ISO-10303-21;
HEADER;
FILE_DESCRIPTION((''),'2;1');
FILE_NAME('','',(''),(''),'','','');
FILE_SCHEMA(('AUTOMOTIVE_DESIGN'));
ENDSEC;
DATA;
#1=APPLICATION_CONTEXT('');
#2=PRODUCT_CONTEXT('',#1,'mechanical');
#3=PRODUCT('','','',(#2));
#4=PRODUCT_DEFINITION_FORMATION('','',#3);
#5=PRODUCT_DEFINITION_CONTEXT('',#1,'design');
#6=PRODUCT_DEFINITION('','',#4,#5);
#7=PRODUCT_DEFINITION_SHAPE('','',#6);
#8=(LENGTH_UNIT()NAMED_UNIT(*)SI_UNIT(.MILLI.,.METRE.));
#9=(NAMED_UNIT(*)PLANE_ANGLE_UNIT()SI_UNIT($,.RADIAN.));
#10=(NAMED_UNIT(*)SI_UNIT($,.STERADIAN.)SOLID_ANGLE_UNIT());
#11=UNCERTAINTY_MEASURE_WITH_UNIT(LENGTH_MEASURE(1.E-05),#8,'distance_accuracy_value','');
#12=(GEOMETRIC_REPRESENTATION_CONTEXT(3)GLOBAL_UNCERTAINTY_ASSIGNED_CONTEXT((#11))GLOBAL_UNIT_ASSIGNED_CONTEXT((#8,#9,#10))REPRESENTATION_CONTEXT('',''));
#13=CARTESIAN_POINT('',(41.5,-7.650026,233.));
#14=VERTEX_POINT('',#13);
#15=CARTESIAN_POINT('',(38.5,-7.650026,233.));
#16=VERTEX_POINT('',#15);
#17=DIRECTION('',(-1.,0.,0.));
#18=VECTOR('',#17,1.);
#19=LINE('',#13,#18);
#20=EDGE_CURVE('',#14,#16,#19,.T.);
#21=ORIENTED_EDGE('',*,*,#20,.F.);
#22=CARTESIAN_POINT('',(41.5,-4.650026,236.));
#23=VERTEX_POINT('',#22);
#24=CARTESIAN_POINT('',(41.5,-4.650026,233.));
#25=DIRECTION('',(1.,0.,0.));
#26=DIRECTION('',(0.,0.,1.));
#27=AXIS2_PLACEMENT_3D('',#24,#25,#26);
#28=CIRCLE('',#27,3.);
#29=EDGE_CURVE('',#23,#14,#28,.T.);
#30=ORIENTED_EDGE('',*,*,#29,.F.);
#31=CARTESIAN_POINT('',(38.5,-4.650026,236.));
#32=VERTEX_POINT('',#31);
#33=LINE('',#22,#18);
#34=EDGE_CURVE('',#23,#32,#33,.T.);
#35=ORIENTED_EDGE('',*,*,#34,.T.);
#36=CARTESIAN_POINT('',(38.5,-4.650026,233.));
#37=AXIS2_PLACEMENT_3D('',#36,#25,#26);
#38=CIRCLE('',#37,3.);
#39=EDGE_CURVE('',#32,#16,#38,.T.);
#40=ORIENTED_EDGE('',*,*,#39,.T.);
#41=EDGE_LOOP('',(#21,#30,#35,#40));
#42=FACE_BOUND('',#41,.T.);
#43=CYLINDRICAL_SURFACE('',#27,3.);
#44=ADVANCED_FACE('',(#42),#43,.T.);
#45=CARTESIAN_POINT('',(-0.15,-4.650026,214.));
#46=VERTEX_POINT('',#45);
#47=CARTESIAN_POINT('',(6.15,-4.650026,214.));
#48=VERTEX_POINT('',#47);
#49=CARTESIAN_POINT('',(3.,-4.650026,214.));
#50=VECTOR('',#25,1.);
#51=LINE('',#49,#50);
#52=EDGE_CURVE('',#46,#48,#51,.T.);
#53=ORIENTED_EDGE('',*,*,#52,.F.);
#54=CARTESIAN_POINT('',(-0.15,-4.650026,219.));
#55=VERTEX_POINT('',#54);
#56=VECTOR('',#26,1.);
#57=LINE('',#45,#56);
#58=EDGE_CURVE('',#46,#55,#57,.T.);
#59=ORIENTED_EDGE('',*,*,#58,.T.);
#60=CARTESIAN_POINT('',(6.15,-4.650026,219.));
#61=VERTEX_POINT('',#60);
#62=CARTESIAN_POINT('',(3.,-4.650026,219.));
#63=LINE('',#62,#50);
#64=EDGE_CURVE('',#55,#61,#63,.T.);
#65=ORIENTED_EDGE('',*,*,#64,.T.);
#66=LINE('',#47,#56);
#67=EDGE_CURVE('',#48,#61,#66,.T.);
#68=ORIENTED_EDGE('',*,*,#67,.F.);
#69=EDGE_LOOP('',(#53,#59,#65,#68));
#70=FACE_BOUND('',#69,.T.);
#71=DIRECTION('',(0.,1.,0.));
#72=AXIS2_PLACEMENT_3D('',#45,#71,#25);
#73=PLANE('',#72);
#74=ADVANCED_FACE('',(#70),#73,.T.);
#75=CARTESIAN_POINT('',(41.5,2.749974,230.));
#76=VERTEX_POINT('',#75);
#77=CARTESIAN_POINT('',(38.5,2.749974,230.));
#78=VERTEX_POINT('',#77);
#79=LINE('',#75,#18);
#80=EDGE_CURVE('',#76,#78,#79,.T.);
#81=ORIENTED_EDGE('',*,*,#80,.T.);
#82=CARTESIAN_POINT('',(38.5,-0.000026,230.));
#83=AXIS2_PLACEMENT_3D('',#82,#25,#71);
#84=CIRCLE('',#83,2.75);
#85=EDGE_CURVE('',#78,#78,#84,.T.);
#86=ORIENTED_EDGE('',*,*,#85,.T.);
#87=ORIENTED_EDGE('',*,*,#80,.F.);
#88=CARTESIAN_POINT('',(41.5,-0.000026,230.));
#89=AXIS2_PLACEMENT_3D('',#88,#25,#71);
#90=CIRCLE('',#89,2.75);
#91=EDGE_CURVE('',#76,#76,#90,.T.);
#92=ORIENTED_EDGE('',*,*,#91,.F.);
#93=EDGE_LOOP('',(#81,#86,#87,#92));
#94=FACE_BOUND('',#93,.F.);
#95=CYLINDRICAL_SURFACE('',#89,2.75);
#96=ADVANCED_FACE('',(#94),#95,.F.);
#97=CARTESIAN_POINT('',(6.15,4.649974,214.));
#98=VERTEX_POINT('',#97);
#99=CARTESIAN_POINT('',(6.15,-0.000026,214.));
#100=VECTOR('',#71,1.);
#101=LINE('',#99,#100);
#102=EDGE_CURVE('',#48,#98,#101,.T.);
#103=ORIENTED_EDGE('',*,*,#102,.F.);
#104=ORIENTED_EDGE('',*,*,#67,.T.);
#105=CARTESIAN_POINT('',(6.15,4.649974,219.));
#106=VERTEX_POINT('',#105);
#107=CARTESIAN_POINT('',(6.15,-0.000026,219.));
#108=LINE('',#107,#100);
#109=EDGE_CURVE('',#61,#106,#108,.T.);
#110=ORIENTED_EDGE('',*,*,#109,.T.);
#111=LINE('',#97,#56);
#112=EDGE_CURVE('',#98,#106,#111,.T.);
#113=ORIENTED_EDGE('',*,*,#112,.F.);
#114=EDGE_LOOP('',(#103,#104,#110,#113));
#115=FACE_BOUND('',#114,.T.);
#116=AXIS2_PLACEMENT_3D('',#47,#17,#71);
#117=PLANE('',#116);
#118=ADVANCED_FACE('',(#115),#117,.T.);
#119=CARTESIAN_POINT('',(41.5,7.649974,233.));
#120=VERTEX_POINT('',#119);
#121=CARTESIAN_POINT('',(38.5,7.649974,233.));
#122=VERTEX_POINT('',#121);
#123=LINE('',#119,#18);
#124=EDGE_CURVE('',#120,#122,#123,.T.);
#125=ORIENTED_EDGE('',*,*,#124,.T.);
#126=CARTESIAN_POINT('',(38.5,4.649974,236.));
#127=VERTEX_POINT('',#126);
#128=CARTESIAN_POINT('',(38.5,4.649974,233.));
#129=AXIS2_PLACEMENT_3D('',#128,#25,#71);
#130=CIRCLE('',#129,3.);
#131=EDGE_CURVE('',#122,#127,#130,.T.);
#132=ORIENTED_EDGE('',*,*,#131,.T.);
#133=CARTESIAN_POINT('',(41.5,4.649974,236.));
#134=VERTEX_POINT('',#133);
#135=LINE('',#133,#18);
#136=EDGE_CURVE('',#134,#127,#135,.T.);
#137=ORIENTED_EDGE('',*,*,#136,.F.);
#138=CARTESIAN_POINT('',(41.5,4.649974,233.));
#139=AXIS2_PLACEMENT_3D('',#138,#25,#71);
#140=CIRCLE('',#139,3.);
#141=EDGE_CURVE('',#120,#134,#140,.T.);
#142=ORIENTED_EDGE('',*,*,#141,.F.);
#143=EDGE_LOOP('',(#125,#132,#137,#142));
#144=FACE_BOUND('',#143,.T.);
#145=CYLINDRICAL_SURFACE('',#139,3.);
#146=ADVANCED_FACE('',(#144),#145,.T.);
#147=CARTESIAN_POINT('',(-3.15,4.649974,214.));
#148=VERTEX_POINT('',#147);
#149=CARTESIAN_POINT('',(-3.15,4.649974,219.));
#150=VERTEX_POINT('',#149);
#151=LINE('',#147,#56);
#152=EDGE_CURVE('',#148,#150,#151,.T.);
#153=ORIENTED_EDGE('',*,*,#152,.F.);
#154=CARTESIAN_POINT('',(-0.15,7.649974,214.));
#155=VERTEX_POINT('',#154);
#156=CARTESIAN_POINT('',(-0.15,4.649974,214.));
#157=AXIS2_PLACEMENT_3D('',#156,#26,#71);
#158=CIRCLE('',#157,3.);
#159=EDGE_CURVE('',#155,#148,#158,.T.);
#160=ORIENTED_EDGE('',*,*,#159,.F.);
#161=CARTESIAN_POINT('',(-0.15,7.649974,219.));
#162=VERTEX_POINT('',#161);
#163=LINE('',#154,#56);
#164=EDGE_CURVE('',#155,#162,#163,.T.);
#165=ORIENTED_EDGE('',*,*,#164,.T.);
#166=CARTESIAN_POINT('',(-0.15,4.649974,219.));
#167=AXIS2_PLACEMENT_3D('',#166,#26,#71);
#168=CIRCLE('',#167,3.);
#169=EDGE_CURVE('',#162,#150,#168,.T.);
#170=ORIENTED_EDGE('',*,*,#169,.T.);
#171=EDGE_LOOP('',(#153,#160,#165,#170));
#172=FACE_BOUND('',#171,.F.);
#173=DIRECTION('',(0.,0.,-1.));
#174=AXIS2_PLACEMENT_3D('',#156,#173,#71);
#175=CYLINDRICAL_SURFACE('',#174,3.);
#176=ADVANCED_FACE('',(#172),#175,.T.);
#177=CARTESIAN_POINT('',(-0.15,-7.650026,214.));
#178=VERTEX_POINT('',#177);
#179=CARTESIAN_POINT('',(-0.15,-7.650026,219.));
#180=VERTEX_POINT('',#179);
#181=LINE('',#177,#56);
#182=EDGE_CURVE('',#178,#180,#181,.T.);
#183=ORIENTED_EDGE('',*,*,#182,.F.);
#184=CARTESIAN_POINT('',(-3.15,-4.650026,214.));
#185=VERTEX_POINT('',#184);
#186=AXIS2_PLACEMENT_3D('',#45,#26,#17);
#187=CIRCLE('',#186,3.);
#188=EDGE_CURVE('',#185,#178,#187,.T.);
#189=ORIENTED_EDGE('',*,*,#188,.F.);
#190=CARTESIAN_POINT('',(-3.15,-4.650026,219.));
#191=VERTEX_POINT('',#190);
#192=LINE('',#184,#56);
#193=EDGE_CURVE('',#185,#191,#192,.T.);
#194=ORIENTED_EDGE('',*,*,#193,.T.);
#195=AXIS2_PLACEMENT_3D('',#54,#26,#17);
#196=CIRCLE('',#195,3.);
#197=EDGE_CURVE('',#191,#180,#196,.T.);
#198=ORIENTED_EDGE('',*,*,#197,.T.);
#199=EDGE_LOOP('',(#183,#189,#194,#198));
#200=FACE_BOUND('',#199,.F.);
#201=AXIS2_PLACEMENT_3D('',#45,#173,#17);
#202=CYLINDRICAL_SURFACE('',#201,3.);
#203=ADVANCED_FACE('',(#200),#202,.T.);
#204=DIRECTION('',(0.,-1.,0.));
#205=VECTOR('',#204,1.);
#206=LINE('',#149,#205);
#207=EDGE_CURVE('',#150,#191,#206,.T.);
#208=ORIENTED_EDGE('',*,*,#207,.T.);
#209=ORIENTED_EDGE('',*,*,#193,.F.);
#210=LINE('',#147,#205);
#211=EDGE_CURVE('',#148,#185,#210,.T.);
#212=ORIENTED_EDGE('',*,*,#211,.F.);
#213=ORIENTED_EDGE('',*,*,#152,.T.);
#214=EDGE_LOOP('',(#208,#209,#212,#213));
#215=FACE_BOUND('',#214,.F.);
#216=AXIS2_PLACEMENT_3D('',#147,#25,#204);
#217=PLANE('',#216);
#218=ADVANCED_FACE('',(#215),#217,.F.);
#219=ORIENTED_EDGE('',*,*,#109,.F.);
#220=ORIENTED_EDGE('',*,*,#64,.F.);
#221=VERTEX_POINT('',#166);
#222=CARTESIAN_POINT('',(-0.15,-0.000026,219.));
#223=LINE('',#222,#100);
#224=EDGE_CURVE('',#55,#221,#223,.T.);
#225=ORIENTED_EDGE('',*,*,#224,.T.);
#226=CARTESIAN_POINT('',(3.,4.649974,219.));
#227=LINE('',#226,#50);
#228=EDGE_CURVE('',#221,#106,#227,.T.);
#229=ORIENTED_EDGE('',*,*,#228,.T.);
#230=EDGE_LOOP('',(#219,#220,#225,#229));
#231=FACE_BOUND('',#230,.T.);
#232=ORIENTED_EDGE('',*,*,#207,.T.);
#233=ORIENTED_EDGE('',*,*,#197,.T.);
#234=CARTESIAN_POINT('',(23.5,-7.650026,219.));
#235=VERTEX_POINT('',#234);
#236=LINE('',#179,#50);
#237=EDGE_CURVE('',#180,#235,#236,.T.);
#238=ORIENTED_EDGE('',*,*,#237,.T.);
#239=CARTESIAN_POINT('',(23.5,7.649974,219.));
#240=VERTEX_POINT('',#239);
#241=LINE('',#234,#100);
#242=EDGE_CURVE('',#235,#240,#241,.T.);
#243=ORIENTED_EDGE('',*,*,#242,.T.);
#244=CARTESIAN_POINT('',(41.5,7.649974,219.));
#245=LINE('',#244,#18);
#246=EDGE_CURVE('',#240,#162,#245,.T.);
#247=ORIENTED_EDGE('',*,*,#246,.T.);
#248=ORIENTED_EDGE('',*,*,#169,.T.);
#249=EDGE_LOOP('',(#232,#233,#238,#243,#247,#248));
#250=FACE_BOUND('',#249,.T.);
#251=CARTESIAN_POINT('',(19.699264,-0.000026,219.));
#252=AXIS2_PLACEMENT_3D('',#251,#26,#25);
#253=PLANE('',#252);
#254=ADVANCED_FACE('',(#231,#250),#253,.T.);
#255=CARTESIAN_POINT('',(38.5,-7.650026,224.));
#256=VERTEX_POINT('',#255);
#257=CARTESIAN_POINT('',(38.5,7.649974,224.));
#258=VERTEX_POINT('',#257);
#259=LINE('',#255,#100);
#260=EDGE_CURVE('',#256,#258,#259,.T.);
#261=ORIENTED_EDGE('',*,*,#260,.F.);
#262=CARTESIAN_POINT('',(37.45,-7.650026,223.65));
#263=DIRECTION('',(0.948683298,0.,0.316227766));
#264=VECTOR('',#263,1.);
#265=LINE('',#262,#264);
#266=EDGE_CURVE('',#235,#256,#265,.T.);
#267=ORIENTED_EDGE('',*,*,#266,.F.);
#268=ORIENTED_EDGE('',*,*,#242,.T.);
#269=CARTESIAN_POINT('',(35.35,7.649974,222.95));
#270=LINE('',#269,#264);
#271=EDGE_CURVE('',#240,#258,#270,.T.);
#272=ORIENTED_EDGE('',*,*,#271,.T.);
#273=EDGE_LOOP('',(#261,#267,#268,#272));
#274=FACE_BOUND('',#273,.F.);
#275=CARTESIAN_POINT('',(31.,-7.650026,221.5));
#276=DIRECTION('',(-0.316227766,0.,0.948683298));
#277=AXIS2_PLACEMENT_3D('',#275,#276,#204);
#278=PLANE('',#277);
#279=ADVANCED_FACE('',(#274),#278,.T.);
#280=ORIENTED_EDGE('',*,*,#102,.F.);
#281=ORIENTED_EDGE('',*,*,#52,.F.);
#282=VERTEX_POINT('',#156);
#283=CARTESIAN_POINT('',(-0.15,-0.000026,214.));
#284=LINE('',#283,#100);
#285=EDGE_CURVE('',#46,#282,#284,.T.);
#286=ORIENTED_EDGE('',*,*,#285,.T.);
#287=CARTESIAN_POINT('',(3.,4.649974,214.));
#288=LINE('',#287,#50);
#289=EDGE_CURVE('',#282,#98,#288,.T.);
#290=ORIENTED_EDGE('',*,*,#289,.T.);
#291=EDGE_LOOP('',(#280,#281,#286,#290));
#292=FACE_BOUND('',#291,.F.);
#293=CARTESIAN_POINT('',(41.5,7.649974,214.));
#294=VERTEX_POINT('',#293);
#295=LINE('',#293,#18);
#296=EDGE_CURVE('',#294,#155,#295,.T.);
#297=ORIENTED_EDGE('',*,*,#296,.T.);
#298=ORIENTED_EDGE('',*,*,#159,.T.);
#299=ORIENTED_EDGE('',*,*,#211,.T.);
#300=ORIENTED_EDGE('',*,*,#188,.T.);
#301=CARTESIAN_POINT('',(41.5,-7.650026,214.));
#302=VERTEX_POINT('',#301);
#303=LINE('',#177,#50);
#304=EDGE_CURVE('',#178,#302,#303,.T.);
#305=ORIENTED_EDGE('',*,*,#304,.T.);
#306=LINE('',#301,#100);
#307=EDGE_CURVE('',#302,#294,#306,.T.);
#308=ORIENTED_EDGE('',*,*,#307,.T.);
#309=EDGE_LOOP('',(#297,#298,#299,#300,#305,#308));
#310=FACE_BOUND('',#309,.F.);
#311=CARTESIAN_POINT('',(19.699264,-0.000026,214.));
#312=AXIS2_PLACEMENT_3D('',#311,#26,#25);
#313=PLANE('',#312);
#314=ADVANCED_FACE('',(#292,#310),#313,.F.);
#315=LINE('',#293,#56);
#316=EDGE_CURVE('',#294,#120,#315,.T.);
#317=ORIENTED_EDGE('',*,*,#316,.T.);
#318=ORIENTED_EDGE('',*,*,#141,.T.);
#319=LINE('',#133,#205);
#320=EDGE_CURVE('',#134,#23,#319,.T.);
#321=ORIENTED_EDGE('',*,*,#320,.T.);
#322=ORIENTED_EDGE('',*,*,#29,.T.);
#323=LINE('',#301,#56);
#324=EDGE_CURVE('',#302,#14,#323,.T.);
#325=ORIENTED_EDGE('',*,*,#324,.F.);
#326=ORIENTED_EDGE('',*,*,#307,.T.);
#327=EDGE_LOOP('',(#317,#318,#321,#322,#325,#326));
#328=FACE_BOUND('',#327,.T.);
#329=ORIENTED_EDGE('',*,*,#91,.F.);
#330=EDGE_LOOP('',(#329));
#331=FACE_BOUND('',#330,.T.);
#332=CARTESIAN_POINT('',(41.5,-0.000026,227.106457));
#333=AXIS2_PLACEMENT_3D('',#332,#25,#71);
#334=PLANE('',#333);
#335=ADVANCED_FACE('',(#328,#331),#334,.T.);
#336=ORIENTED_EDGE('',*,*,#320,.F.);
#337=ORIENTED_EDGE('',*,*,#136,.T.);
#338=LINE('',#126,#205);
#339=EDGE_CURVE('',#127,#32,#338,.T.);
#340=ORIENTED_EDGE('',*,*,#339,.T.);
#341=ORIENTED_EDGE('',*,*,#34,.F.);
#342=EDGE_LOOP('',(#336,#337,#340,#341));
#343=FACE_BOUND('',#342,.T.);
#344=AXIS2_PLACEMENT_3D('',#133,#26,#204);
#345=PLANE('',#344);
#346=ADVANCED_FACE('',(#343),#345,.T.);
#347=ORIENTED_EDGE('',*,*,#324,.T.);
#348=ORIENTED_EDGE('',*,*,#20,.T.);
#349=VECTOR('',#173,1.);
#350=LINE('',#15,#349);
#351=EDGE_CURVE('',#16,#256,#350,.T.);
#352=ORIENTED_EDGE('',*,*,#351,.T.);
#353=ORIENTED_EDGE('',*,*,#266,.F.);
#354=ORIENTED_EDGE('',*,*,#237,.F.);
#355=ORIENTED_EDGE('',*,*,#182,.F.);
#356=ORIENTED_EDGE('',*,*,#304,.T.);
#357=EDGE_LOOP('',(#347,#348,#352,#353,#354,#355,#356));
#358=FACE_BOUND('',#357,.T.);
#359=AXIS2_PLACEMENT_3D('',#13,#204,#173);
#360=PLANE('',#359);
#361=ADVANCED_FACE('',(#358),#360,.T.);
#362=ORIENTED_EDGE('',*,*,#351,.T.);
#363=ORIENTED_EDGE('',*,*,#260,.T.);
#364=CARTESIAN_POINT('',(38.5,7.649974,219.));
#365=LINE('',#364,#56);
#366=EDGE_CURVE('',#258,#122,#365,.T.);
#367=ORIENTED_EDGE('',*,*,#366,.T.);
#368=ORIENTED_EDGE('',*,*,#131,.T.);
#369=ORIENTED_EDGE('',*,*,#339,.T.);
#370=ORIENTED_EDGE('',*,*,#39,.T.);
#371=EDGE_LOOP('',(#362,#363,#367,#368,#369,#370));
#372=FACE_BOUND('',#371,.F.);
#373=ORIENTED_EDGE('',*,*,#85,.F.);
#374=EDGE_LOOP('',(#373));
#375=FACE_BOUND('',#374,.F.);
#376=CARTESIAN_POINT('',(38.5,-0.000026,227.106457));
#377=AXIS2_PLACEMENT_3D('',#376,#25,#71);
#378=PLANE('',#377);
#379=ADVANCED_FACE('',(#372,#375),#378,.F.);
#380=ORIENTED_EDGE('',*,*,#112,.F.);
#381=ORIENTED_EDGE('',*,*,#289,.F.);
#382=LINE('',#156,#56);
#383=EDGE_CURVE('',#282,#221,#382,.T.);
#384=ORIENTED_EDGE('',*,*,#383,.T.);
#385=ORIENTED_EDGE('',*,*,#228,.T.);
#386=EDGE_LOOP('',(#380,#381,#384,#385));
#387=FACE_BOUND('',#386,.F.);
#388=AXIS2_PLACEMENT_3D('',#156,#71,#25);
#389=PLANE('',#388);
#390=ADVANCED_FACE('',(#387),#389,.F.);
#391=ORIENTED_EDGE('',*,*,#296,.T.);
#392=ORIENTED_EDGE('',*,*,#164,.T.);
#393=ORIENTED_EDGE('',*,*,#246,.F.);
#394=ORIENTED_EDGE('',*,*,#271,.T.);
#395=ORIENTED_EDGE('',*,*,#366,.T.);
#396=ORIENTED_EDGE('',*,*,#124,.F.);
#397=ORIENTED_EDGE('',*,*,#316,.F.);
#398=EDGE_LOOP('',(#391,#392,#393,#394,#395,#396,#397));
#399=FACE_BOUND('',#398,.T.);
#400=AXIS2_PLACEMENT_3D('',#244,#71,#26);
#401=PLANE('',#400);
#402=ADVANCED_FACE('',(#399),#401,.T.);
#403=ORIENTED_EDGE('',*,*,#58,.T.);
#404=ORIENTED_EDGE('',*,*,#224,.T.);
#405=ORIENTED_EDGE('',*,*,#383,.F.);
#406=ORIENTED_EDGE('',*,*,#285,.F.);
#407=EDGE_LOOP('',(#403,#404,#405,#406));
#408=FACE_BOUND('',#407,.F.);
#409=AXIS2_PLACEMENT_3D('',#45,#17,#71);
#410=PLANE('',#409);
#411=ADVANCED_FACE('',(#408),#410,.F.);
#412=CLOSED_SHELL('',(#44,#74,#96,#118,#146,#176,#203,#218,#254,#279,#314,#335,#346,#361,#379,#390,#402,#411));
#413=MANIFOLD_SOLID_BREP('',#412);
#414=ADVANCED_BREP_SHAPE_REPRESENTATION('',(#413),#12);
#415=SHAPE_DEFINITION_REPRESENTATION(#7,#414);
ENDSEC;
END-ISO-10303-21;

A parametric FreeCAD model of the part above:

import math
import FreeCAD as App
import Part
import Sketcher

V = App.Vector


def edges_at(feature, points):
    """Names of the edges that pass closest to the given points."""
    edges = feature.Shape.Edges
    near = lambda p: min(range(len(edges)), key=lambda i: edges[i].distToShape(Part.Vertex(*p))[0])
    return sorted({f"Edge{near(p) + 1}" for p in points})

doc = App.newDocument("Part")
body = doc.addObject("PartDesign::Body", "Body")

# Sketch on XY plane
sketch1 = body.newObject("Sketcher::SketchObject", "Sketch")
sketch1.AttachmentSupport = (doc.getObject("XY_Plane"), [""])
sketch1.MapMode = "FlatFace"
sketch1.addGeometry([
    Part.LineSegment(V(-6.2, 4.7, 0), V(-6.2, -4.7, 0)),  # 0
    Part.ArcOfCircle(Part.Circle(V(-3.1, -4.7, 0), V(0, 0, 1), 3), math.radians(180), math.radians(270)),  # 1
    Part.LineSegment(V(-3.1, -7.7, 0), V(38.5, -7.7, 0)),  # 2
    Part.LineSegment(V(38.5, -7.7, 0), V(38.5, 7.7, 0)),  # 3
    Part.LineSegment(V(38.5, 7.7, 0), V(-3.1, 7.7, 0)),  # 4
    Part.ArcOfCircle(Part.Circle(V(-3.1, 4.7, 0), V(0, 0, 1), 3), math.radians(90), math.radians(180)),  # 5
    Part.LineSegment(V(3.1, -4.7, 0), V(-3.1, -4.7, 0)),  # 6
    Part.LineSegment(V(-3.1, -4.7, 0), V(-3.1, 4.7, 0)),  # 7
    Part.LineSegment(V(-3.1, 4.7, 0), V(3.1, 4.7, 0)),  # 8
    Part.LineSegment(V(3.1, 4.7, 0), V(3.1, -4.7, 0)),  # 9
], False)
sketch1.addConstraint([
    Sketcher.Constraint("Tangent", 0, 2, 1, 1),
    Sketcher.Constraint("Tangent", 1, 2, 2, 1),
    Sketcher.Constraint("Coincident", 2, 2, 3, 1),
    Sketcher.Constraint("Coincident", 3, 2, 4, 1),
    Sketcher.Constraint("Tangent", 4, 2, 5, 1),
    Sketcher.Constraint("Tangent", 5, 2, 0, 1),
    Sketcher.Constraint("Coincident", 6, 2, 7, 1),
    Sketcher.Constraint("Coincident", 7, 2, 8, 1),
    Sketcher.Constraint("Coincident", 8, 2, 9, 1),
    Sketcher.Constraint("Coincident", 9, 2, 6, 1),
    Sketcher.Constraint("Vertical", 0),
    Sketcher.Constraint("Horizontal", 2),
    Sketcher.Constraint("Vertical", 3),
    Sketcher.Constraint("Horizontal", 4),
    Sketcher.Constraint("Horizontal", 6),
    Sketcher.Constraint("Vertical", 7),
    Sketcher.Constraint("Horizontal", 8),
    Sketcher.Constraint("Vertical", 9),
    Sketcher.Constraint("Coincident", 6, 2, 1, 3),
    Sketcher.Constraint("Coincident", 7, 2, 5, 3),
    Sketcher.Constraint("Symmetric", 6, 2, 8, 2, -1, 1),
    Sketcher.Constraint("Radius", 1, 3.0),
    Sketcher.Constraint("DistanceX", 6, 2, 6, 1, 6.3),
    Sketcher.Constraint("DistanceY", 0, 2, 0, 1, 9.3),
    Sketcher.Constraint("DistanceX", 2, 1, 2, 2, 41.65),
])
pad1 = body.newObject("PartDesign::Pad", "Pad")
pad1.Profile = sketch1
pad1.Length = 5

# Sketch on YZ plane
sketch2 = body.newObject("Sketcher::SketchObject", "Sketch001")
sketch2.AttachmentSupport = (doc.getObject("YZ_Plane"), [""])
sketch2.MapMode = "FlatFace"
sketch2.AttachmentOffset = App.Placement(V(0, 0, 38.5), App.Rotation())
sketch2.addGeometry([
    Part.LineSegment(V(-7.7, 19, 0), V(-7.7, 5, 0)),  # 0
    Part.LineSegment(V(-7.7, 5, 0), V(7.7, 5, 0)),  # 1
    Part.LineSegment(V(7.7, 5, 0), V(7.7, 19, 0)),  # 2
    Part.ArcOfCircle(Part.Circle(V(4.7, 19, 0), V(0, 0, 1), 3), math.radians(0), math.radians(90)),  # 3
    Part.LineSegment(V(4.7, 22, 0), V(-4.7, 22, 0)),  # 4
    Part.ArcOfCircle(Part.Circle(V(-4.7, 19, 0), V(0, 0, 1), 3), math.radians(90), math.radians(180)),  # 5
    Part.Circle(V(0, 16, 0), V(0, 0, 1), 2.8),  # 6
], False)
sketch2.addConstraint([
    Sketcher.Constraint("Coincident", 0, 2, 1, 1),
    Sketcher.Constraint("Coincident", 1, 2, 2, 1),
    Sketcher.Constraint("Tangent", 2, 2, 3, 1),
    Sketcher.Constraint("Tangent", 3, 2, 4, 1),
    Sketcher.Constraint("Tangent", 4, 2, 5, 1),
    Sketcher.Constraint("Tangent", 5, 2, 0, 1),
    Sketcher.Constraint("Vertical", 0),
    Sketcher.Constraint("Horizontal", 1),
    Sketcher.Constraint("Vertical", 2),
    Sketcher.Constraint("Horizontal", 4),
    Sketcher.Constraint("Equal", 3, 5),
    Sketcher.Constraint("PointOnObject", 6, 3, -2),
    Sketcher.Constraint("Radius", 3, 3.0),
    Sketcher.Constraint("Diameter", 6, 5.5),
    Sketcher.Constraint("DistanceY", 0, 2, 0, 1, 14.0),
    Sketcher.Constraint("DistanceX", 1, 1, 1, 2, 15.3),
    Sketcher.Constraint("DistanceY", -1, 1, 3, 3, 19.0),
    Sketcher.Constraint("DistanceY", -1, 1, 6, 3, 16.0),
    Sketcher.Constraint("DistanceX", -1, 1, 3, 3, 4.65),
])
pad2 = body.newObject("PartDesign::Pad", "Pad001")
pad2.Profile = sketch2
pad2.Length = 3
pad2.Reversed = True
doc.recompute()

chamfer = body.newObject("PartDesign::Chamfer", "Chamfer")
chamfer.Base = (pad2, edges_at(pad2, [(35.5, 0, 5)]))
chamfer.ChamferType = "Two distances"
chamfer.Size = 15
chamfer.Size2 = 5
body2 = doc.addObject("PartDesign::Body", "Body001")
doc.recompute()

body.Placement = App.Placement(V(3, -0.000026, 214), App.Rotation(V(0, 0, 1), 0))
boolean = body2.newObject("PartDesign::Boolean", "Boolean")
boolean.Type = "Fuse"
boolean.addObjects([body])

doc.recompute()
